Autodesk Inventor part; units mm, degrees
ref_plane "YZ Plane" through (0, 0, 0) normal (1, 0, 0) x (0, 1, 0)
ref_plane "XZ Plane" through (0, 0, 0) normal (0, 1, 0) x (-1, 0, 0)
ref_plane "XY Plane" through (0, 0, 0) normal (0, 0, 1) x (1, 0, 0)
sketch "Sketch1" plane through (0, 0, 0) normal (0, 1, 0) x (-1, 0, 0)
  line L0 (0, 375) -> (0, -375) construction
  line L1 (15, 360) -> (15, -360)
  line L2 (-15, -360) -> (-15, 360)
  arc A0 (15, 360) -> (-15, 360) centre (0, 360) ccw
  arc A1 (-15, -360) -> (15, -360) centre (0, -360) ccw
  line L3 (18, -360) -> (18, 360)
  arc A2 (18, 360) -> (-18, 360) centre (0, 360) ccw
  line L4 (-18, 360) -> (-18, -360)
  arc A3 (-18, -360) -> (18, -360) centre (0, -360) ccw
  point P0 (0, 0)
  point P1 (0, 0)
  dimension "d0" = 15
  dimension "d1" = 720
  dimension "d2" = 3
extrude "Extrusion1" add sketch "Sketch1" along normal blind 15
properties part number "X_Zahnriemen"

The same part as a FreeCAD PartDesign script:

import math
import FreeCAD as App
import Part
import Sketcher

V = App.Vector

doc = App.newDocument("Part")
body = doc.addObject("PartDesign::Body", "Body")

# Sketch on XZ plane
sketch1 = doc.addObject("Sketcher::SketchObject", "Sketch")
body.addObject(sketch1)
sketch1.AttachmentSupport = (doc.XZ_Plane, [""])
sketch1.MapMode = "FlatFace"
sketch1.addGeometry([
    Part.ArcOfCircle(Part.Circle(V(0, -360, 0), V(0, 0, 1), 18), math.radians(180), math.radians(360)),  # 0
    Part.LineSegment(V(-18, -360, 0), V(-18, 360, 0)),  # 1
    Part.ArcOfCircle(Part.Circle(V(0, 360, 0), V(0, 0, 1), 18), math.radians(0), math.radians(180)),  # 2
    Part.LineSegment(V(18, 360, 0), V(18, -360, 0)),  # 3
    Part.ArcOfCircle(Part.Circle(V(0, 360, 0), V(0, 0, 1), 15), math.radians(0), math.radians(180)),  # 4
    Part.LineSegment(V(-15, 360, 0), V(-15, -360, 0)),  # 5
    Part.ArcOfCircle(Part.Circle(V(0, -360, 0), V(0, 0, 1), 15), math.radians(180), math.radians(360)),  # 6
    Part.LineSegment(V(15, -360, 0), V(15, 360, 0)),  # 7
], False)
sketch1.addConstraint([
    Sketcher.Constraint("Tangent", 0, 1, 1, 1),
    Sketcher.Constraint("Tangent", 1, 2, 2, 2),
    Sketcher.Constraint("Tangent", 2, 1, 3, 1),
    Sketcher.Constraint("Tangent", 3, 2, 0, 2),
    Sketcher.Constraint("Tangent", 4, 2, 5, 1),
    Sketcher.Constraint("Tangent", 5, 2, 6, 1),
    Sketcher.Constraint("Tangent", 6, 2, 7, 1),
    Sketcher.Constraint("Tangent", 7, 2, 4, 1),
    Sketcher.Constraint("Vertical", 1),
    Sketcher.Constraint("Vertical", 3),
    Sketcher.Constraint("Vertical", 5),
    Sketcher.Constraint("Vertical", 7),
    Sketcher.Constraint("Coincident", 4, 3, 2, 3),
    Sketcher.Constraint("Symmetric", 0, 3, 2, 3, -1, 1),
    Sketcher.Constraint("Horizontal", 6, 3, 0, 1),
    Sketcher.Constraint("Radius", 4, 15.0),
    Sketcher.Constraint("DistanceY", 1, 1, 1, 2, 720.0),
    Sketcher.Constraint("Radius", 0, 18.0),
])
pad1 = doc.addObject("PartDesign::Pad", "Pad")
body.addObject(pad1)
pad1.Profile = sketch1
pad1.Length = 15
pad1.Reversed = True

doc.recompute()
